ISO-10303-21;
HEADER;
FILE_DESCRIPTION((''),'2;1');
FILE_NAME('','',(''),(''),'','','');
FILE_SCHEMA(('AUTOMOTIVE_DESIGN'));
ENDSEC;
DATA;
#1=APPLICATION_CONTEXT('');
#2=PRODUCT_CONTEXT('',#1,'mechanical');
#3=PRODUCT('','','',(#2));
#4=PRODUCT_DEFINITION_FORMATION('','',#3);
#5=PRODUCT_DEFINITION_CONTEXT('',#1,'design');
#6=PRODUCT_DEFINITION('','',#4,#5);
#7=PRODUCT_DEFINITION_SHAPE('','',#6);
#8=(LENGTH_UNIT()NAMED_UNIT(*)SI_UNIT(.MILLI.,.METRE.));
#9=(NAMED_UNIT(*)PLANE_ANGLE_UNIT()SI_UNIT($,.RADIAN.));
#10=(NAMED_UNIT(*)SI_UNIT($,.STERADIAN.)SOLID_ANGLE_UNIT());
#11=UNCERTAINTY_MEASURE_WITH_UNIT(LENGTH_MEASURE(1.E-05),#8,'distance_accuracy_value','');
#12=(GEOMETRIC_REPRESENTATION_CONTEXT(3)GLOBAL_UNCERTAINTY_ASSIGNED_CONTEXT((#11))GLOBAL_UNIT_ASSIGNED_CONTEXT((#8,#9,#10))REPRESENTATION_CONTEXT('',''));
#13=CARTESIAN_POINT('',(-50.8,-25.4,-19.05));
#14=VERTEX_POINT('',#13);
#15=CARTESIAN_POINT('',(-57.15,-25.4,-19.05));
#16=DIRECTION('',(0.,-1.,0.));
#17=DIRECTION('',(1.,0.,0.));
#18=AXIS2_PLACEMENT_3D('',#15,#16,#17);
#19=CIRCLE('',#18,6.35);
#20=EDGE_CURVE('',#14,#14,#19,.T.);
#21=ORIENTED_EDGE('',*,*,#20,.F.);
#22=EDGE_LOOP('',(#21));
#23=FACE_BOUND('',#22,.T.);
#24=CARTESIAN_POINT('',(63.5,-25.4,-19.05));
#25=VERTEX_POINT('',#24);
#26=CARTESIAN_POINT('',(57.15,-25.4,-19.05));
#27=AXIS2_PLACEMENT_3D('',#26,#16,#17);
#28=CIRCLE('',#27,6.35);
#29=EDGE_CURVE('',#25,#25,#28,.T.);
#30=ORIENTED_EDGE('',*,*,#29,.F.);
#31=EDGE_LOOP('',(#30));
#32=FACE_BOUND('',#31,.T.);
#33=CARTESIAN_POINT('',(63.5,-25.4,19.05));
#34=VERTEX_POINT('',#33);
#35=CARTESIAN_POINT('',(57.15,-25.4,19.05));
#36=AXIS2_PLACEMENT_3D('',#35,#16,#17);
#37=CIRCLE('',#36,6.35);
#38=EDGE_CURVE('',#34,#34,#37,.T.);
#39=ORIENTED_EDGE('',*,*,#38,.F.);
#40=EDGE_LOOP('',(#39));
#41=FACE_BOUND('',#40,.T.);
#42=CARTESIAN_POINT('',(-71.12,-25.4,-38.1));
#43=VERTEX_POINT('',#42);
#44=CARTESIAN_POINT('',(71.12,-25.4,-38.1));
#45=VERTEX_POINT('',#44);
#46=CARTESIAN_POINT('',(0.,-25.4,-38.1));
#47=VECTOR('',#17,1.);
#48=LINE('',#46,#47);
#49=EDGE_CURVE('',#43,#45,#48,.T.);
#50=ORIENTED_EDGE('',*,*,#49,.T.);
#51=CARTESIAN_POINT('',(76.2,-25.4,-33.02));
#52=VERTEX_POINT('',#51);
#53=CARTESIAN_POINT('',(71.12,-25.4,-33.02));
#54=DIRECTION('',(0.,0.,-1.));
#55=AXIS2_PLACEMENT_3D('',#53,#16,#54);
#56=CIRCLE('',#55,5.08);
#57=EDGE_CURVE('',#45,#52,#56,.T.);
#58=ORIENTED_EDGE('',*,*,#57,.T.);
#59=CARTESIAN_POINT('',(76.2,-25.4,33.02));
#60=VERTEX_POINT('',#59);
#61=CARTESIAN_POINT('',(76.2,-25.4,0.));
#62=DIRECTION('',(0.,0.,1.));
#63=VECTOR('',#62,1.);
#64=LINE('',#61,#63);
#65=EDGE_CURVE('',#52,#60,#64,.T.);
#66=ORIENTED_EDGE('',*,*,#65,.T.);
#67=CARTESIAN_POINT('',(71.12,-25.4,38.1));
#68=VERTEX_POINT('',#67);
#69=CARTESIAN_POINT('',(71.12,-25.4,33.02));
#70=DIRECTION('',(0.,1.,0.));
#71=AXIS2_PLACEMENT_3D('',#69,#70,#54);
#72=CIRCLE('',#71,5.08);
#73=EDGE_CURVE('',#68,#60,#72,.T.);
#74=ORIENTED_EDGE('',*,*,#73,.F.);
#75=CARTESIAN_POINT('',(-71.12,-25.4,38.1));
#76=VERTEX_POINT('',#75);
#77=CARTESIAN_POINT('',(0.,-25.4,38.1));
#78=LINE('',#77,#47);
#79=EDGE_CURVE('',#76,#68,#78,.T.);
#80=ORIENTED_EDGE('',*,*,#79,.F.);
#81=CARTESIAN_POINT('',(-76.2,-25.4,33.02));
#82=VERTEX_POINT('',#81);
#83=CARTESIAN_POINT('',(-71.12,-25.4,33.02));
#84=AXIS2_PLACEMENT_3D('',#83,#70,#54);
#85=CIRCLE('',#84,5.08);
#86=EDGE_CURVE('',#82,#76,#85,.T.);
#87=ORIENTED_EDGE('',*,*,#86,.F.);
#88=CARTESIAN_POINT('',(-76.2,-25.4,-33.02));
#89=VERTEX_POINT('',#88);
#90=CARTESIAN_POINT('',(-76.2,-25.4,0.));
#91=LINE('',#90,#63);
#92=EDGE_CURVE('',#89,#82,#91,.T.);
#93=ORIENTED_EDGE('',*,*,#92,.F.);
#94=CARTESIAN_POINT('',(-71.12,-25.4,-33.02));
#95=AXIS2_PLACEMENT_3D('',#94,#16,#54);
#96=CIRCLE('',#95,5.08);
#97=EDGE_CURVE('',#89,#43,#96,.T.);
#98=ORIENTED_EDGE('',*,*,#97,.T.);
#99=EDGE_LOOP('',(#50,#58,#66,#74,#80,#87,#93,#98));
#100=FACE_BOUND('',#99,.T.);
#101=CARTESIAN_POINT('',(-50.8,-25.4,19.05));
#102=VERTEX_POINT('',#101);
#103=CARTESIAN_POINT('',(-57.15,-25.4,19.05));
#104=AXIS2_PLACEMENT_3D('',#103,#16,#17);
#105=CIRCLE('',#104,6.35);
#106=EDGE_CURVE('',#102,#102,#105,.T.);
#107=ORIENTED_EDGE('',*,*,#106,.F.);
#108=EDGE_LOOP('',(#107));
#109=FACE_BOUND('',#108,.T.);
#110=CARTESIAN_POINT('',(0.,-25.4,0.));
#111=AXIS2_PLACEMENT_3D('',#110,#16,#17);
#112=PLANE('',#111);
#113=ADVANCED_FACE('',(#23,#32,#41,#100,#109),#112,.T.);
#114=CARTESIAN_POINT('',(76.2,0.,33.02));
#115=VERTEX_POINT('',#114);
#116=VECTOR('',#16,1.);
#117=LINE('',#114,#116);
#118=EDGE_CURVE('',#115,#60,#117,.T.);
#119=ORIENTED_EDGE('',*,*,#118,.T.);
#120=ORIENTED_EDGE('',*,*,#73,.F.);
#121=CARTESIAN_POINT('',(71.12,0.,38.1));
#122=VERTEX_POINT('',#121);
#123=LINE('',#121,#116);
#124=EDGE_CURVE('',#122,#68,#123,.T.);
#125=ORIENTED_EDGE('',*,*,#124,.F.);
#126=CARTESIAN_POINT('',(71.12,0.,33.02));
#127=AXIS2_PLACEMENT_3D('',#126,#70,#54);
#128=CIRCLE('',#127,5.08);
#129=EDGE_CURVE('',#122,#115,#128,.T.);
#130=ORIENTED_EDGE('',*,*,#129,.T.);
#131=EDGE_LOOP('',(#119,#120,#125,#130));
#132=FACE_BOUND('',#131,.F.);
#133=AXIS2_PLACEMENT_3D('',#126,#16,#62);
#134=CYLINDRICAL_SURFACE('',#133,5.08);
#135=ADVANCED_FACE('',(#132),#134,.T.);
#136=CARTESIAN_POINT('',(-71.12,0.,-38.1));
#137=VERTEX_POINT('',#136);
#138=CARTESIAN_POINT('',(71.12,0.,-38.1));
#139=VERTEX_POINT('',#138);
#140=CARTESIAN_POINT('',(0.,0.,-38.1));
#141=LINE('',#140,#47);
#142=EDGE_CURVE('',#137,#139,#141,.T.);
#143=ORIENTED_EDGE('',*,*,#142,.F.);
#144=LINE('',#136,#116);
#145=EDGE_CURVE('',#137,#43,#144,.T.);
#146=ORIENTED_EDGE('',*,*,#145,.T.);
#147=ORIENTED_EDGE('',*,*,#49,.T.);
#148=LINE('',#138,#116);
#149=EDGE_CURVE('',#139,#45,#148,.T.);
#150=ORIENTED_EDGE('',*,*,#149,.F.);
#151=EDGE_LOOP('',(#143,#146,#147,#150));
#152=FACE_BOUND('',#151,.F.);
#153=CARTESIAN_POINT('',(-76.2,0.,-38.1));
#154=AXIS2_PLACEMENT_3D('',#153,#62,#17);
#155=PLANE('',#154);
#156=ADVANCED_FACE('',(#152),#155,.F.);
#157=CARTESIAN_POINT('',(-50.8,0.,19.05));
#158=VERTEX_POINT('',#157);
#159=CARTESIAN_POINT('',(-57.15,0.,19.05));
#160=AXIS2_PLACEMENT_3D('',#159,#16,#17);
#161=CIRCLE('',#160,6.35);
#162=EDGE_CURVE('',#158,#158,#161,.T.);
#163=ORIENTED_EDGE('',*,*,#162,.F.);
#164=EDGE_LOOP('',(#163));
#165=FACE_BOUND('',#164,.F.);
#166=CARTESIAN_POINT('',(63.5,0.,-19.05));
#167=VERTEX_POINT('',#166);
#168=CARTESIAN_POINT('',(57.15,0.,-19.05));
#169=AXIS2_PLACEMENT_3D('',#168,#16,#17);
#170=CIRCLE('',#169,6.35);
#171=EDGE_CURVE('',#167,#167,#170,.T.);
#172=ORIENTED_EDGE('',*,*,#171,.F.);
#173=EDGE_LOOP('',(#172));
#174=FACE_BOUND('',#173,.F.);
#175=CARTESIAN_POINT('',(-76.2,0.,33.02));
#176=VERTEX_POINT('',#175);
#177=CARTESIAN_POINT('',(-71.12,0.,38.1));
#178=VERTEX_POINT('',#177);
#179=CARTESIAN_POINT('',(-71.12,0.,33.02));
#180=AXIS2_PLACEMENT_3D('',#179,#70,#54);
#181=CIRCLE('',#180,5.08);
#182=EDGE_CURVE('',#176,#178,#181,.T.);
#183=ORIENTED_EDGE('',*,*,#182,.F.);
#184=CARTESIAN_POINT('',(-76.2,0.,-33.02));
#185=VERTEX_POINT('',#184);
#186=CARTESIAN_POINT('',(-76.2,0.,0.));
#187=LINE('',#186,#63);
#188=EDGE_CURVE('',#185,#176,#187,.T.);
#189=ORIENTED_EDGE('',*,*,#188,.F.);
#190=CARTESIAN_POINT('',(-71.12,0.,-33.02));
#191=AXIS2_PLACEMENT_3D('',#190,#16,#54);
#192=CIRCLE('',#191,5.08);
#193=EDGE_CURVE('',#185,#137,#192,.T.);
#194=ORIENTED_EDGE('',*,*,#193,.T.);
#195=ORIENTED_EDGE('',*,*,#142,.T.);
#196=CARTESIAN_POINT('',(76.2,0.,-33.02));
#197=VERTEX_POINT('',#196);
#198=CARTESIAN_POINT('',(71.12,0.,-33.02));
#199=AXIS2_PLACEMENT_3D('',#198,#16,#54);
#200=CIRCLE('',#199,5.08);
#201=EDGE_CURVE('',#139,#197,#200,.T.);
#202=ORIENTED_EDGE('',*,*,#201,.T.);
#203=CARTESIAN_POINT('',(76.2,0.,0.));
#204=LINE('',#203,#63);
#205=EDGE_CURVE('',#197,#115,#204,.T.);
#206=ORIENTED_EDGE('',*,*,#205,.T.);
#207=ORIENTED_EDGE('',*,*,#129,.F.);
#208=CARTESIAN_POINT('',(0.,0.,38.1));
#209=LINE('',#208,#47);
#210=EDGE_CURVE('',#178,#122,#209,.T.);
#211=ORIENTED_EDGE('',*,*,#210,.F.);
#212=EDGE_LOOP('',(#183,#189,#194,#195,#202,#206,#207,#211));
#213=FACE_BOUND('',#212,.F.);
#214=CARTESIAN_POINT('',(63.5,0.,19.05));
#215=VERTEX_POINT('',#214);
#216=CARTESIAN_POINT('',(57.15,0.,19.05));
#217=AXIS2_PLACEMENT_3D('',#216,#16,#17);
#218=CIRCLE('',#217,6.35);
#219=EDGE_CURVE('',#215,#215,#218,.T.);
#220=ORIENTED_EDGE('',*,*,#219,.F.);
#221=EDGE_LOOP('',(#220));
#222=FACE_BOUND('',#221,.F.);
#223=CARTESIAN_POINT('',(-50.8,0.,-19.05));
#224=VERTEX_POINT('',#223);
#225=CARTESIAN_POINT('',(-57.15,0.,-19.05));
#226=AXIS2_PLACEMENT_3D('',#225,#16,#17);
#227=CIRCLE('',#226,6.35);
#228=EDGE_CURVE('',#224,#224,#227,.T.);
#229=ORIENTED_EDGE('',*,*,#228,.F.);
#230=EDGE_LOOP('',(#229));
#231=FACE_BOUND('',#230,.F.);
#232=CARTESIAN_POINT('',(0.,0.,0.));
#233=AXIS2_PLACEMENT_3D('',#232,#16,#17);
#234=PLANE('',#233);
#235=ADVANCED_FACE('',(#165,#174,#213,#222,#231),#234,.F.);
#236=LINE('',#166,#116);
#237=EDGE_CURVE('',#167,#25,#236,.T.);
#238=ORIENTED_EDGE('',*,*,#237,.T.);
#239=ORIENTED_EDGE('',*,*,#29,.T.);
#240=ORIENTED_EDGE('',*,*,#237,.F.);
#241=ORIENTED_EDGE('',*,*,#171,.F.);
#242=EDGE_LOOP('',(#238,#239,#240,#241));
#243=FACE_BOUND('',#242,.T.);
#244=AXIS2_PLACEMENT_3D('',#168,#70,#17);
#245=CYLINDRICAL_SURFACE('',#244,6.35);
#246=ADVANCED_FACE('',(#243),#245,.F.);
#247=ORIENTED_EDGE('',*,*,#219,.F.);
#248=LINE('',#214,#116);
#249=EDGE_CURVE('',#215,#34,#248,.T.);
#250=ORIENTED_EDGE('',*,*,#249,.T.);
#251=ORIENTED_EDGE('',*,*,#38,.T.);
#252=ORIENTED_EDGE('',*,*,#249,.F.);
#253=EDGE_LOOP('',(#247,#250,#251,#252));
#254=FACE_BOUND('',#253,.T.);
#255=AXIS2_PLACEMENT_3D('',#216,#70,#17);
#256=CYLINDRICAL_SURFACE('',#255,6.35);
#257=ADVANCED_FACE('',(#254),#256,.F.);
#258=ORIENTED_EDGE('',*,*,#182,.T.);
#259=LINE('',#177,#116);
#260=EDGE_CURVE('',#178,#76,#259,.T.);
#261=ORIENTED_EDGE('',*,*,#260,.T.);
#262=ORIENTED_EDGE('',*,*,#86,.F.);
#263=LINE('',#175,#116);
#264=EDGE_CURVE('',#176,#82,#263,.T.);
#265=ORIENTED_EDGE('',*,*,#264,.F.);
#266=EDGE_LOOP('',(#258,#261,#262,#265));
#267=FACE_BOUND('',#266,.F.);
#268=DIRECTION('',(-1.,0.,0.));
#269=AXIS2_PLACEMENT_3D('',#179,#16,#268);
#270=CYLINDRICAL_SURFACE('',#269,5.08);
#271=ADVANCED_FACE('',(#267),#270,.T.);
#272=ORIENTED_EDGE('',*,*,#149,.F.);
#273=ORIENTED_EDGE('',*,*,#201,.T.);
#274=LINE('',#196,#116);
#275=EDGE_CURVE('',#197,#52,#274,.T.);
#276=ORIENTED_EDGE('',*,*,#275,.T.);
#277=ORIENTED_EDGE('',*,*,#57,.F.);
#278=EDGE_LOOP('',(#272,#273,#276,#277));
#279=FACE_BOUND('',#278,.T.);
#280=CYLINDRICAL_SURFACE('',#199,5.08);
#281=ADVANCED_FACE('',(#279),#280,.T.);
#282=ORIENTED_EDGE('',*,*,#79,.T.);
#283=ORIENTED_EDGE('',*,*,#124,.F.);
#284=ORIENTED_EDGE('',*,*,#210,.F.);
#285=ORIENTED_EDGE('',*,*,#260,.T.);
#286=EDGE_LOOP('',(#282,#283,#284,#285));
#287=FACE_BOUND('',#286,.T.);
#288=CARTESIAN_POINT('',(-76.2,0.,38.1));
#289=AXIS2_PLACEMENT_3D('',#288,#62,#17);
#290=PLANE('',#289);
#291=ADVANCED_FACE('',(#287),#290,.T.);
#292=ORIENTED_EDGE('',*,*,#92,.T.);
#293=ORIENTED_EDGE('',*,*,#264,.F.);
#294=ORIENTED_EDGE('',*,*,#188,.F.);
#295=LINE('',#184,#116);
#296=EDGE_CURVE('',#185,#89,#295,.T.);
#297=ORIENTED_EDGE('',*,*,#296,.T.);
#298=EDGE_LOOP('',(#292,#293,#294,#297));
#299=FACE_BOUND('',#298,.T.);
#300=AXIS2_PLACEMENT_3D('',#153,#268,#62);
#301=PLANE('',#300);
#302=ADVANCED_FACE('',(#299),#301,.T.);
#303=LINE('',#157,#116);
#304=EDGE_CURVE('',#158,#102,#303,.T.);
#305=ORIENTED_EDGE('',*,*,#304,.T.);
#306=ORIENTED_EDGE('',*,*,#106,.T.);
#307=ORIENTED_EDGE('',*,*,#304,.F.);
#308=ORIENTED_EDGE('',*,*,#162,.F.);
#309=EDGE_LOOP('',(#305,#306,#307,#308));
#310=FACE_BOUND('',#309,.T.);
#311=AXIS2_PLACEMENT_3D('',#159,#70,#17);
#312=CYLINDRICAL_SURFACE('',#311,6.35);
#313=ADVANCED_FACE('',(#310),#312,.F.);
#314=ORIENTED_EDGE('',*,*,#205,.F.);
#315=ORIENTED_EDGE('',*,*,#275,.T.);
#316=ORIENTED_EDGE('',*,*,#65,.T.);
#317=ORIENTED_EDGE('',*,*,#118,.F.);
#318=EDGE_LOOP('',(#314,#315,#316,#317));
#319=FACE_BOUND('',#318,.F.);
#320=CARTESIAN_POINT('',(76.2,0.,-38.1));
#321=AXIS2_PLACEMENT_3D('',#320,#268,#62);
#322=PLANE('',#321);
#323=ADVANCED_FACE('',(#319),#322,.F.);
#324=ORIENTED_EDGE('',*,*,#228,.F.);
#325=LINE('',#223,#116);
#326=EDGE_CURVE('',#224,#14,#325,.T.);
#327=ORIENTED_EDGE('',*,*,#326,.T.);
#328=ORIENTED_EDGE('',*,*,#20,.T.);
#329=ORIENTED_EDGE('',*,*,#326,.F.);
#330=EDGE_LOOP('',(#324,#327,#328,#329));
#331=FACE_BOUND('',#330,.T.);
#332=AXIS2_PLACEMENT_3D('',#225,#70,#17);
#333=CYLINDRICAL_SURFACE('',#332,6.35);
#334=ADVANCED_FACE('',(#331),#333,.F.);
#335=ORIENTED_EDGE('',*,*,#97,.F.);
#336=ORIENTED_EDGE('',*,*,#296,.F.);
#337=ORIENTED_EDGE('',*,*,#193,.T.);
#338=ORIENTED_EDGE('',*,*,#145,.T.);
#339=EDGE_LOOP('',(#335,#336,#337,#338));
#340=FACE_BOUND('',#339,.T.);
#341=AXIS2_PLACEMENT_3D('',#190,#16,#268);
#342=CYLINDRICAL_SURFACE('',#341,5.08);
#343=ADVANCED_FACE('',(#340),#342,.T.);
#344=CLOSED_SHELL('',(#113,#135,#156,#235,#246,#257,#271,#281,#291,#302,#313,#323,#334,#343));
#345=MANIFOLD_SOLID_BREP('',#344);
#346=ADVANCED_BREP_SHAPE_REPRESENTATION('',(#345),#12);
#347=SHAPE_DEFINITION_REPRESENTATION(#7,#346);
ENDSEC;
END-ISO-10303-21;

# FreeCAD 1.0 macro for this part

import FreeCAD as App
import Part
import Sketcher
from FreeCAD import Vector
Q = App.Units.Quantity


def edges_at(feature, points):
    """Names of the edges that pass closest to the given points."""
    edges = feature.Shape.Edges
    near = lambda p: min(range(len(edges)), key=lambda i: edges[i].distToShape(Part.Vertex(*p))[0])
    return sorted({f"Edge{near(p) + 1}" for p in points})

doc = App.newDocument("Part")
body = doc.addObject("PartDesign::Body", "Body")

sketch1 = doc.addObject("Sketcher::SketchObject", "Sketch")
body.addObject(sketch1)
sketch1.AttachmentSupport = (doc.XZ_Plane, [""])
sketch1.MapMode = "FlatFace"
sketch1.addGeometry(Part.LineSegment(Vector(-76, 38, 0), Vector(-76, -38, 0)), False)
sketch1.addGeometry(Part.LineSegment(Vector(-76, -38, 0), Vector(76, -38, 0)), False)
sketch1.addGeometry(Part.LineSegment(Vector(76, -38, 0), Vector(76, 38, 0)), False)
sketch1.addGeometry(Part.LineSegment(Vector(76, 38, 0), Vector(-76, 38, 0)), False)
sketch1.addGeometry(Part.Circle(Vector(-57, -19, 0), Vector(0, 0, 1), 6), False)
sketch1.addGeometry(Part.Circle(Vector(57, -19, 0), Vector(0, 0, 1), 6), False)
sketch1.addGeometry(Part.Circle(Vector(-57, 19, 0), Vector(0, 0, 1), 6), False)
sketch1.addGeometry(Part.Circle(Vector(57, 19, 0), Vector(0, 0, 1), 6), False)
sketch1.addConstraint(Sketcher.Constraint("Coincident", 0, 2, 1, 1))
sketch1.addConstraint(Sketcher.Constraint("Coincident", 1, 2, 2, 1))
sketch1.addConstraint(Sketcher.Constraint("Coincident", 2, 2, 3, 1))
sketch1.addConstraint(Sketcher.Constraint("Coincident", 3, 2, 0, 1))
sketch1.addConstraint(Sketcher.Constraint("Vertical", 0))
sketch1.addConstraint(Sketcher.Constraint("Horizontal", 1))
sketch1.addConstraint(Sketcher.Constraint("Vertical", 2))
sketch1.addConstraint(Sketcher.Constraint("Horizontal", 3))
sketch1.addConstraint(Sketcher.Constraint("Equal", 4, 5))
sketch1.addConstraint(Sketcher.Constraint("Equal", 5, 6))
sketch1.addConstraint(Sketcher.Constraint("Equal", 6, 7))
sketch1.addConstraint(Sketcher.Constraint("Symmetric", 5, 3, 6, 3, -1, 1))
sketch1.addConstraint(Sketcher.Constraint("Symmetric", 4, 3, 7, 3, -1, 1))
sketch1.addConstraint(Sketcher.Constraint("Symmetric", 0, 2, 2, 2, -1, 1))
sketch1.addConstraint(Sketcher.Constraint("Symmetric", 4, 3, 5, 3, -2))
sketch1.addConstraint(Sketcher.Constraint("Diameter", 4, Q("0.5 in")))
sketch1.addConstraint(Sketcher.Constraint("DistanceX", 1, 1, 1, 2, Q("6 in")))
sketch1.addConstraint(Sketcher.Constraint("DistanceY", 0, 2, 0, 1, Q("3 in")))
sketch1.addConstraint(Sketcher.Constraint("DistanceX", 4, 3, 5, 3, Q("4.5 in")))
sketch1.addConstraint(Sketcher.Constraint("DistanceY", 4, 3, 6, 3, Q("1.5 in")))
pad1 = doc.addObject("PartDesign::Pad", "Pad")
body.addObject(pad1)
pad1.Profile = sketch1
pad1.Length = Q("1 in")
doc.recompute()

fillet = doc.addObject("PartDesign::Fillet", "Fillet")
body.addObject(fillet)
fillet.Base = (pad1, edges_at(pad1, [
    (76.2, -12.7, 38.1),
    (-76.2, -12.7, -38.1),
    (-76.2, -12.7, 38.1),
    (76.2, -12.7, -38.1),
]))
fillet.Radius = Q("0.2 in")

doc.recompute()
